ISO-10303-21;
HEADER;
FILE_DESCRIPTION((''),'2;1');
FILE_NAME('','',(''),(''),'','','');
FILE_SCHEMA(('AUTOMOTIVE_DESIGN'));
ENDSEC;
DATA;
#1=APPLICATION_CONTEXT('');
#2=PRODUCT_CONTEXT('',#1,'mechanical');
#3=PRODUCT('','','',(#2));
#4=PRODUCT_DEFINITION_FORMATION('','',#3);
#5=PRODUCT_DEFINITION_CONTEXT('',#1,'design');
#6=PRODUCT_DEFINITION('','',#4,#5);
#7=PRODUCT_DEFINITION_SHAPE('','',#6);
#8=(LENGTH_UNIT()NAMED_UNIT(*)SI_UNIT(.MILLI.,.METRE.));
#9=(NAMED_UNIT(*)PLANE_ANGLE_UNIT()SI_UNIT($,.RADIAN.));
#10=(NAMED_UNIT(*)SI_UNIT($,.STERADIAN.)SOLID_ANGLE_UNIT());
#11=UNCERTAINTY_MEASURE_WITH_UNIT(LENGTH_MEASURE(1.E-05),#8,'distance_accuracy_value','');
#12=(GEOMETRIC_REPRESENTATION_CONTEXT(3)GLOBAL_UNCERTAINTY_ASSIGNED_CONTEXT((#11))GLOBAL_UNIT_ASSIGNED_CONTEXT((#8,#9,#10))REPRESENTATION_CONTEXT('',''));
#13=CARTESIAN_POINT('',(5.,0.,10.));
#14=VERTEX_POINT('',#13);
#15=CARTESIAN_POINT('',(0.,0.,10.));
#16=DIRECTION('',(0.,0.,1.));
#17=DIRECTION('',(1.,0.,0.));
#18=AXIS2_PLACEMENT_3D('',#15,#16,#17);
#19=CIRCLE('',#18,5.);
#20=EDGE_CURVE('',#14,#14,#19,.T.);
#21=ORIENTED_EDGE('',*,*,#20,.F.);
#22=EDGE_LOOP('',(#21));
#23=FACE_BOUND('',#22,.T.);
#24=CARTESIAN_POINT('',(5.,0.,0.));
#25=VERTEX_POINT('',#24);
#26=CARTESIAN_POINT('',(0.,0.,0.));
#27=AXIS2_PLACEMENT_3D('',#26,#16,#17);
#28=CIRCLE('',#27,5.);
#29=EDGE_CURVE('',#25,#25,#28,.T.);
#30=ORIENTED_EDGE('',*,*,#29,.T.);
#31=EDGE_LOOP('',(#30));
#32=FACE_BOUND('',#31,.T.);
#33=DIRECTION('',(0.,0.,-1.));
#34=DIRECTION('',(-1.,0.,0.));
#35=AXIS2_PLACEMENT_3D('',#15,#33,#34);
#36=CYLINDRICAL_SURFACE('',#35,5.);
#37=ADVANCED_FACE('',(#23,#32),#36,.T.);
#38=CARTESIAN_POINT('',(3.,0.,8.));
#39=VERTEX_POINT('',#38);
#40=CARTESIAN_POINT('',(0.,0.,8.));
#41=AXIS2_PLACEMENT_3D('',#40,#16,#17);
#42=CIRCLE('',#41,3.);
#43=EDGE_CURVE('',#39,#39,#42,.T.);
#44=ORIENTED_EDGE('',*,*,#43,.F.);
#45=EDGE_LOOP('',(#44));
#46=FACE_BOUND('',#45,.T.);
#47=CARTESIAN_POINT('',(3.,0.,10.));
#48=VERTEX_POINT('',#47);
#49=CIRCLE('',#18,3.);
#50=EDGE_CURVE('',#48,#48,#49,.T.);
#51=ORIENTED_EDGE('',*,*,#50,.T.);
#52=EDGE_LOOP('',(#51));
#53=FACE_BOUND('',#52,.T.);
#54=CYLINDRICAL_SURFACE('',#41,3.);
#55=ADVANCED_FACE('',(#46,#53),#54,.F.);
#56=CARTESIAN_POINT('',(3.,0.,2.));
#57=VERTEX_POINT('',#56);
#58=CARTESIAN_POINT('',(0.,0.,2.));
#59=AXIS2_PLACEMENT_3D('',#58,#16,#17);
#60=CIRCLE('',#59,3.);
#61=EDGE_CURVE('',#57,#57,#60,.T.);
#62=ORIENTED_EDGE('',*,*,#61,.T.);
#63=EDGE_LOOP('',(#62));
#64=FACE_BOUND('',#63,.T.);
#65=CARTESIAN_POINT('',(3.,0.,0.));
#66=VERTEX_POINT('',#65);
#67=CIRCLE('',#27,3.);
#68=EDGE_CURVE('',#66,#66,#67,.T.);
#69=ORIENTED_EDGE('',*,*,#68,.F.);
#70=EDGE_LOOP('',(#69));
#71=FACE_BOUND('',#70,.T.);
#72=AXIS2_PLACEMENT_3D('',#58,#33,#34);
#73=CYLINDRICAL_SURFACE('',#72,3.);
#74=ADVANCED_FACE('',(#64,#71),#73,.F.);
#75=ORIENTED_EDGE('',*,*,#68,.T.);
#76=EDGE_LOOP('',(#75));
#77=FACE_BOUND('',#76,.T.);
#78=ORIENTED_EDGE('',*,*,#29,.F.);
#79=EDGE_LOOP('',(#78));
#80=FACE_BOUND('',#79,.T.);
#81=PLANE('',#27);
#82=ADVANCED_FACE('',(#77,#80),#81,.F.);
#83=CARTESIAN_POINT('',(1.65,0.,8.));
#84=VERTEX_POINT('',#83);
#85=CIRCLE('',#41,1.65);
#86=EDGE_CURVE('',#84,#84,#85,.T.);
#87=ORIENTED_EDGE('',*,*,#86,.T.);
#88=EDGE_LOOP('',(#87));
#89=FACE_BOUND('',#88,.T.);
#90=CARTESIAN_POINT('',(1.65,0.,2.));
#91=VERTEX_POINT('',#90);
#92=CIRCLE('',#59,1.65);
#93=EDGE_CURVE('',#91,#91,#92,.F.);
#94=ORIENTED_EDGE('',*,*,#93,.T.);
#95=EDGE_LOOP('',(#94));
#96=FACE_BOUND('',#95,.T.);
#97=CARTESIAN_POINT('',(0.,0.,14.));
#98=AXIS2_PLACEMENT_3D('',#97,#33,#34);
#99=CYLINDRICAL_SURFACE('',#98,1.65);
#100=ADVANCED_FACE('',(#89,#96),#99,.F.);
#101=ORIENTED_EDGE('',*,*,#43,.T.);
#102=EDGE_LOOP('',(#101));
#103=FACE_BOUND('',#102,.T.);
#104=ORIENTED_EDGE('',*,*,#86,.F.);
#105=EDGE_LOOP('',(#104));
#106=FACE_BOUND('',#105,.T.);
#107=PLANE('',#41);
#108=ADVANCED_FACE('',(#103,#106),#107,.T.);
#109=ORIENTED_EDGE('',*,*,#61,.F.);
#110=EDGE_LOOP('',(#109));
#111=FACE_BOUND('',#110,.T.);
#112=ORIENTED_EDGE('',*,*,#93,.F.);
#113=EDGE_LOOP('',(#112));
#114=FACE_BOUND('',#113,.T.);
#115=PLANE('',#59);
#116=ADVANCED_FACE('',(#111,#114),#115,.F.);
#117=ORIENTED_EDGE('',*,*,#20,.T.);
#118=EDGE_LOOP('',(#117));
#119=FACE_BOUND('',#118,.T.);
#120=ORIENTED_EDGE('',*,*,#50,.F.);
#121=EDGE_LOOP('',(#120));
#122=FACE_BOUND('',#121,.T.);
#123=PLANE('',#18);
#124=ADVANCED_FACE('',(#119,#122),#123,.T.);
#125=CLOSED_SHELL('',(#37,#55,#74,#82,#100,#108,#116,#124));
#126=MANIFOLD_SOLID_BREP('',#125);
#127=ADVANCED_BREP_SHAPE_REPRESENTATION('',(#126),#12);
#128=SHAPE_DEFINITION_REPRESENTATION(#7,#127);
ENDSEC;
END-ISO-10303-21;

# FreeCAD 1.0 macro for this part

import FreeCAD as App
import Part
import Sketcher

V = App.Vector
Q = App.Units.Quantity

doc = App.newDocument("Part")
body = doc.addObject("PartDesign::Body", "Body")

# Sketch on XY plane
sketch1 = body.newObject("Sketcher::SketchObject", "Sketch")
sketch1.AttachmentSupport = (doc.getObject("XY_Plane"), [""])
sketch1.MapMode = "FlatFace"
sketch1.addGeometry(Part.Circle(V(0, 0, 0), V(0, 0, 1), 5), False)
sketch1.addConstraint(Sketcher.Constraint("Coincident", 0, 3, -1, 1))
sketch1.addConstraint(Sketcher.Constraint("Diameter", 0, Q("10 mm")))
pad1 = body.newObject("PartDesign::Pad", "Pad")
pad1.Profile = sketch1
pad1.Length = 10

# Sketch on XY plane
sketch2 = body.newObject("Sketcher::SketchObject", "Sketch001")
sketch2.AttachmentSupport = (doc.getObject("XY_Plane"), [""])
sketch2.MapMode = "FlatFace"
sketch2.addGeometry(Part.Circle(V(0, 0, 0), V(0, 0, 1), 3), False)
sketch2.addConstraint(Sketcher.Constraint("Coincident", 0, 3, -1, 1))
sketch2.addConstraint(Sketcher.Constraint("Diameter", 0, Q("6 mm")))
pocket1 = body.newObject("PartDesign::Pocket", "Pocket")
pocket1.Profile = sketch2
pocket1.Length = 2
pocket1.Reversed = True

# Sketch on XY plane
sketch3 = body.newObject("Sketcher::SketchObject", "Sketch002")
sketch3.AttachmentSupport = (doc.getObject("XY_Plane"), [""])
sketch3.MapMode = "FlatFace"
sketch3.addGeometry(Part.Circle(V(0, 0, 0), V(0, 0, 1), 1.65), False)
sketch3.addConstraint(Sketcher.Constraint("Coincident", 0, 3, -1, 1))
sketch3.addConstraint(Sketcher.Constraint("Diameter", 0, Q("3.3 mm")))
pocket2 = body.newObject("PartDesign::Pocket", "Pocket001")
pocket2.Profile = sketch3
pocket2.Length = 14
pocket2.Reversed = True

# Sketch on XY plane
sketch4 = body.newObject("Sketcher::SketchObject", "Sketch003")
sketch4.AttachmentSupport = (doc.getObject("XY_Plane"), [""])
sketch4.MapMode = "FlatFace"
sketch4.AttachmentOffset = App.Placement(V(0, 0, 10), App.Rotation())
sketch4.addGeometry(Part.Circle(V(0, 0, 0), V(0, 0, 1), 3), False)
sketch4.addConstraint(Sketcher.Constraint("Coincident", 0, 3, -1, 1))
sketch4.addConstraint(Sketcher.Constraint("Diameter", 0, Q("6 mm")))
pocket3 = body.newObject("PartDesign::Pocket", "Pocket002")
pocket3.Profile = sketch4
pocket3.Length = 2

doc.recompute()
